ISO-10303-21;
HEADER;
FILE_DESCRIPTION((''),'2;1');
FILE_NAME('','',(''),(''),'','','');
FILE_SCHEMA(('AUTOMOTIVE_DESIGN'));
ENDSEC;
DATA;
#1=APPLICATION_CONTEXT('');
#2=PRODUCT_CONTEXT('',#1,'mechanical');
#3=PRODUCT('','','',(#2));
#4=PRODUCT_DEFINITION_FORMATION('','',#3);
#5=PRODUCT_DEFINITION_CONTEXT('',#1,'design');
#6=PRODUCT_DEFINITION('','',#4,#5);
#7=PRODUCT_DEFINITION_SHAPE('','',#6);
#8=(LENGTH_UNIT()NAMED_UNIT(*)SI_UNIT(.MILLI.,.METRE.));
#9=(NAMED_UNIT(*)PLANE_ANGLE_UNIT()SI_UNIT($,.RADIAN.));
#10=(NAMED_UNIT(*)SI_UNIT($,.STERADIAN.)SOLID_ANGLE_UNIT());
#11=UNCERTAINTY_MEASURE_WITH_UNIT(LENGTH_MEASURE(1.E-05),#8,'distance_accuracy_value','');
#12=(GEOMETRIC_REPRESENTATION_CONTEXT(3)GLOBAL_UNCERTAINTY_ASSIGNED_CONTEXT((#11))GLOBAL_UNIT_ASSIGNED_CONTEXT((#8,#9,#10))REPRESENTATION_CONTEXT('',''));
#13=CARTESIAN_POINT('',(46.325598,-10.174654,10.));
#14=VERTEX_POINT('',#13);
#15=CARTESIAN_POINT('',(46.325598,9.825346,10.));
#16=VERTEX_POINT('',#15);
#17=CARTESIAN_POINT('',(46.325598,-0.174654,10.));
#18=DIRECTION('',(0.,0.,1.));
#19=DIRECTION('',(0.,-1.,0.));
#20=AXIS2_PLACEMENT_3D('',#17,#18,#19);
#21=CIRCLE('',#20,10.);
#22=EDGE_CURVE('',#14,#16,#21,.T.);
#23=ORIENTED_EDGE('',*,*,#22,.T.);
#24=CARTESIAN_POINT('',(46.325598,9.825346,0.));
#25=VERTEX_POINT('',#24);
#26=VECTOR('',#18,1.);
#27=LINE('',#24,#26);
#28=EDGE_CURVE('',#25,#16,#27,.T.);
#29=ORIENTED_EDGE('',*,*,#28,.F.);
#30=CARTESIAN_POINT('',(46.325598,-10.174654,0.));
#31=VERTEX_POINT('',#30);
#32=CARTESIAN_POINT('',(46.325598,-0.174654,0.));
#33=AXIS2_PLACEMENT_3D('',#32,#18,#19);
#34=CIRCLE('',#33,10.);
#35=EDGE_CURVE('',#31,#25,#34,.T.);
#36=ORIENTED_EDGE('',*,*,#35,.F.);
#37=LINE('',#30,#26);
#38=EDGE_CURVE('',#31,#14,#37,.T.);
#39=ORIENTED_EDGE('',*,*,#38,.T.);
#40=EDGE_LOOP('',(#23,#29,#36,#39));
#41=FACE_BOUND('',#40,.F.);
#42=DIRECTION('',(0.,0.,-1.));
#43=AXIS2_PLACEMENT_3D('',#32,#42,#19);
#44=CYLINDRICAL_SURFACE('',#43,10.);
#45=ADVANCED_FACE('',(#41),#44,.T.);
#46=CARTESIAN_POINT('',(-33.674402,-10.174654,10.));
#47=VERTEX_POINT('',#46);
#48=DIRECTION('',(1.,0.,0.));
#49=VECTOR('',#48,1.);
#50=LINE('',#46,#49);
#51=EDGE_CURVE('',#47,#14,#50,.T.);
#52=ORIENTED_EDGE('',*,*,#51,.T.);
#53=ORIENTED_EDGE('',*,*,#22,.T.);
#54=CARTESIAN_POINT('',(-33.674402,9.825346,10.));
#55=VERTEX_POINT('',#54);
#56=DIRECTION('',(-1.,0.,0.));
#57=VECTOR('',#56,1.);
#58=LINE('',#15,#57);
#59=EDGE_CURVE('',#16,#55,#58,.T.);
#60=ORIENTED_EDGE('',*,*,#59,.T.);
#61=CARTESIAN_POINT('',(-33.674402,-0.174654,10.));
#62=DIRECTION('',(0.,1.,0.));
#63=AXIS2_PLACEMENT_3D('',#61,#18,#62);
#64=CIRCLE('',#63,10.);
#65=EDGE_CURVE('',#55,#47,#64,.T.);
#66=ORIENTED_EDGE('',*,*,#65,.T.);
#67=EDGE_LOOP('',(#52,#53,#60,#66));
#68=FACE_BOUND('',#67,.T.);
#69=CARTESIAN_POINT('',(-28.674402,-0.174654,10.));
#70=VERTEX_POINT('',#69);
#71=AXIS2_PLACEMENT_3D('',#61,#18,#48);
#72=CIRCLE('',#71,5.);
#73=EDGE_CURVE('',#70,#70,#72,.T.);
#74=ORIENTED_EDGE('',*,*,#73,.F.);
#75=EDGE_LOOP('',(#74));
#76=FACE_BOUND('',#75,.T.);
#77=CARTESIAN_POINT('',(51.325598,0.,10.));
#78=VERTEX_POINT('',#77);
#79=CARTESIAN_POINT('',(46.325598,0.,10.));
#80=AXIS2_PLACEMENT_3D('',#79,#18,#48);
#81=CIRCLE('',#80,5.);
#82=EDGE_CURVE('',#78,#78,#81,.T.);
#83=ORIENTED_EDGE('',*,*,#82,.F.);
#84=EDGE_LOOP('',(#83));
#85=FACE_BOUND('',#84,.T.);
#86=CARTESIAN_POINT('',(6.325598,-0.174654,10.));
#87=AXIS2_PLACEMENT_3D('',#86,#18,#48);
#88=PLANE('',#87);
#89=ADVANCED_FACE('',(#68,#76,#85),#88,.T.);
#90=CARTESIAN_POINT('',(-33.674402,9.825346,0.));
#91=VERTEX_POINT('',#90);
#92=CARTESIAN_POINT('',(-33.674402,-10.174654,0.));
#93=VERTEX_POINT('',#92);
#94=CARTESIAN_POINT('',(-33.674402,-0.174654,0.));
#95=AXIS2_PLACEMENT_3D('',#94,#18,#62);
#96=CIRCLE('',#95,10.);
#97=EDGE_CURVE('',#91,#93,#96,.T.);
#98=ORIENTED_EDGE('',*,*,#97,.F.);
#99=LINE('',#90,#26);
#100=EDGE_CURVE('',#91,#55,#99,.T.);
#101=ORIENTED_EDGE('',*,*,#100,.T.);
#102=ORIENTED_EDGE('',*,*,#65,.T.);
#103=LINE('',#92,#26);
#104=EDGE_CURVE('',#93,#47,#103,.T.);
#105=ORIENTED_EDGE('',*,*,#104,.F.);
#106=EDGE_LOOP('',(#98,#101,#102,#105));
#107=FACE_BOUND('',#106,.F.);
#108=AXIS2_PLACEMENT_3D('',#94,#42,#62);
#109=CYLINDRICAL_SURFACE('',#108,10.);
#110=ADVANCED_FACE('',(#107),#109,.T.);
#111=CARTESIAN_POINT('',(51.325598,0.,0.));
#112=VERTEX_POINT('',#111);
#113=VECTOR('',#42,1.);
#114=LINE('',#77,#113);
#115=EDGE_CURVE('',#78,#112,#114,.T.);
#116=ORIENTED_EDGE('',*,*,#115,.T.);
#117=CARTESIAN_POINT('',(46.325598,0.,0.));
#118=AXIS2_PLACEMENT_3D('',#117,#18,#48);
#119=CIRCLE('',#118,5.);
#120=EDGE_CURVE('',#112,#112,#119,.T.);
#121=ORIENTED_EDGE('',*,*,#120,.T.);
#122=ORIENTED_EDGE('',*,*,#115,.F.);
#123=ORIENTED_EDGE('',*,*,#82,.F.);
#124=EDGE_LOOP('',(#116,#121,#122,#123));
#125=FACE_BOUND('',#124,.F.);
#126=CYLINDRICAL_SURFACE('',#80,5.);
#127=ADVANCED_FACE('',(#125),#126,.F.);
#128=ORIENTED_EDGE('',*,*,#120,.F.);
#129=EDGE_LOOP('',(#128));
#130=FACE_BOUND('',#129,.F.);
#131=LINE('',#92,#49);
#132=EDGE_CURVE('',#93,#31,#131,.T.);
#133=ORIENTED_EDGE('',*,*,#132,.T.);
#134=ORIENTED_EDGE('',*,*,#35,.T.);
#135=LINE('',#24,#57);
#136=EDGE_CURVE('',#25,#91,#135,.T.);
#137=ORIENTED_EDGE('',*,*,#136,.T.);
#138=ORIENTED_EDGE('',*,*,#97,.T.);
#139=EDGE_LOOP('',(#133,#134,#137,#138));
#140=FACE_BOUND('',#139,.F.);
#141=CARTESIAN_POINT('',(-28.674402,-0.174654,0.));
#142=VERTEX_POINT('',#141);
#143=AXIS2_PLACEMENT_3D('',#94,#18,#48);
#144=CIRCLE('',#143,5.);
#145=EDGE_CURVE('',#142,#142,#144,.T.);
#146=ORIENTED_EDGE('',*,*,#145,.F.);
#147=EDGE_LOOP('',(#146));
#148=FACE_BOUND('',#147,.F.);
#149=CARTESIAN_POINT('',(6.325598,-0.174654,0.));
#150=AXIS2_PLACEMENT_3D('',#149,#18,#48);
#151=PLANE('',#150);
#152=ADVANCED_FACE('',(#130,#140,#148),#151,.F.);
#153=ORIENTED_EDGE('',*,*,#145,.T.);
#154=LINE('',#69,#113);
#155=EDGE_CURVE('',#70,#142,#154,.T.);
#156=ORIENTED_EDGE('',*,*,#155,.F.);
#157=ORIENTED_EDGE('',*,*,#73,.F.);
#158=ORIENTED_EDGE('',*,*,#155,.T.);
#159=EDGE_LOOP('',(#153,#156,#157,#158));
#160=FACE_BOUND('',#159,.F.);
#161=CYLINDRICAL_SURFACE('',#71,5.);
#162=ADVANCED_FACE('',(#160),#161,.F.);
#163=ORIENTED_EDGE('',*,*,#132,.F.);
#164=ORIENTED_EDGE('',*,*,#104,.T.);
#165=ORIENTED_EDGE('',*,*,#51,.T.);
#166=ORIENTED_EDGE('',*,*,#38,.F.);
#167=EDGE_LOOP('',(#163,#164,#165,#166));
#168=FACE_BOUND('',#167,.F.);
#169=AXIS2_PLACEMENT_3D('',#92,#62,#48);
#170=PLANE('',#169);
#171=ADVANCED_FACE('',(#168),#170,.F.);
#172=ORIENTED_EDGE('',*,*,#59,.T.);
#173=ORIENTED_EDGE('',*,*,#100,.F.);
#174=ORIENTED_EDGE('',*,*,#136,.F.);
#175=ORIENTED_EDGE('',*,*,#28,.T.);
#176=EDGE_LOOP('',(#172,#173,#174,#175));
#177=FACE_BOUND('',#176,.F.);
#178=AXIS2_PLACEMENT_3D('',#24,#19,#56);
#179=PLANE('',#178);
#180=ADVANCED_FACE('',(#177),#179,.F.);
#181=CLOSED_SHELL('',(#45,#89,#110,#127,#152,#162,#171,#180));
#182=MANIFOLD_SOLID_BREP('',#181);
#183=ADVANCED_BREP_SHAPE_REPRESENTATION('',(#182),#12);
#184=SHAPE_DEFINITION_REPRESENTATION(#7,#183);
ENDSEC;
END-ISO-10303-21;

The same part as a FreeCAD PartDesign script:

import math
import FreeCAD as App
import Part
import Sketcher
Q = App.Units.Quantity

doc = App.newDocument("Part")
params = doc.addObject("Spreadsheet::Sheet", "Params")
for row, (alias, value) in enumerate([
    ("sketch1_radius", "10 mm"),
    ("sketch1_width", "80 mm"),
    ("pad1_length", "10 mm"),
    ("sketch2_diameter", "10 mm"),
], start=1):
    params.set(f"A{row}", alias)
    params.set(f"B{row}", "=" + value)
    params.setAlias(f"B{row}", alias)

body = doc.addObject("PartDesign::Body", "Body")

# Sketch on XY plane
sketch1 = doc.addObject("Sketcher::SketchObject", "Sketch")
body.addObject(sketch1)
sketch1.AttachmentSupport = (doc.XY_Plane, [""])
sketch1.MapMode = "FlatFace"
sketch1.addGeometry([
    Part.LineSegment(App.Vector(46.325598, 9.825346, 0), App.Vector(-33.674402, 9.825346, 0)),
    Part.ArcOfCircle(Part.Circle(App.Vector(-33.674402, -0.174654, 0), App.Vector(0, 0, 1), 10), math.radians(90), math.radians(270)),
    Part.LineSegment(App.Vector(-33.674402, -10.174654, 0), App.Vector(46.325598, -10.174654, 0)),
    Part.ArcOfCircle(Part.Circle(App.Vector(46.325598, -0.174654, 0), App.Vector(0, 0, 1), 10), math.radians(-90), math.radians(90)),
], False)
sketch1.addConstraint([
    Sketcher.Constraint("Tangent", 0, 2, 1, 1),
    Sketcher.Constraint("Tangent", 1, 2, 2, 1),
    Sketcher.Constraint("Tangent", 2, 2, 3, 1),
    Sketcher.Constraint("Tangent", 3, 2, 0, 1),
    Sketcher.Constraint("Horizontal", 0),
    Sketcher.Constraint("Horizontal", 2),
    Sketcher.Constraint("Radius", 1, Q("10 mm")),
    Sketcher.Constraint("DistanceX", 0, 2, 0, 1, Q("80 mm")),
    Sketcher.Constraint("DistanceX", 1, 3, -1, 1, Q("33.674402 mm")),
    Sketcher.Constraint("DistanceY", 1, 3, -1, 1, Q("0.174654 mm")),
])
sketch1.setExpression("Constraints[6]", "Params.sketch1_radius")
sketch1.setExpression("Constraints[7]", "Params.sketch1_width")
pad1 = doc.addObject("PartDesign::Pad", "Pad")
body.addObject(pad1)
pad1.Profile = sketch1
pad1.setExpression("Length", "Params.pad1_length")

# Sketch on XY plane
sketch2 = doc.addObject("Sketcher::SketchObject", "Sketch001")
body.addObject(sketch2)
sketch2.AttachmentSupport = (doc.XY_Plane, [""])
sketch2.MapMode = "FlatFace"
sketch2.AttachmentOffset = App.Placement(App.Vector(0, 0, 10), App.Rotation())
sketch2.addGeometry([
    Part.Circle(App.Vector(-33.674402, -0.174654, 0), App.Vector(0, 0, 1), 5),
    Part.Circle(App.Vector(46.325598, 0, 0), App.Vector(0, 0, 1), 5),
], False)
sketch2.addConstraint([
    Sketcher.Constraint("Equal", 0, 1),
    Sketcher.Constraint("PointOnObject", 1, 3, -1),
    Sketcher.Constraint("Diameter", 0, Q("10 mm")),
    Sketcher.Constraint("DistanceX", 0, 3, 1, 3, Q("80 mm")),
    Sketcher.Constraint("DistanceX", 0, 3, -1, 1, Q("33.674402 mm")),
    Sketcher.Constraint("DistanceY", 0, 3, -1, 1, Q("0.174654 mm")),
])
sketch2.setExpression("Constraints[2]", "Params.sketch2_diameter")
pocket1 = doc.addObject("PartDesign::Pocket", "Pocket")
body.addObject(pocket1)
pocket1.Profile = sketch2
pocket1.Type = "ThroughAll"

doc.recompute()
